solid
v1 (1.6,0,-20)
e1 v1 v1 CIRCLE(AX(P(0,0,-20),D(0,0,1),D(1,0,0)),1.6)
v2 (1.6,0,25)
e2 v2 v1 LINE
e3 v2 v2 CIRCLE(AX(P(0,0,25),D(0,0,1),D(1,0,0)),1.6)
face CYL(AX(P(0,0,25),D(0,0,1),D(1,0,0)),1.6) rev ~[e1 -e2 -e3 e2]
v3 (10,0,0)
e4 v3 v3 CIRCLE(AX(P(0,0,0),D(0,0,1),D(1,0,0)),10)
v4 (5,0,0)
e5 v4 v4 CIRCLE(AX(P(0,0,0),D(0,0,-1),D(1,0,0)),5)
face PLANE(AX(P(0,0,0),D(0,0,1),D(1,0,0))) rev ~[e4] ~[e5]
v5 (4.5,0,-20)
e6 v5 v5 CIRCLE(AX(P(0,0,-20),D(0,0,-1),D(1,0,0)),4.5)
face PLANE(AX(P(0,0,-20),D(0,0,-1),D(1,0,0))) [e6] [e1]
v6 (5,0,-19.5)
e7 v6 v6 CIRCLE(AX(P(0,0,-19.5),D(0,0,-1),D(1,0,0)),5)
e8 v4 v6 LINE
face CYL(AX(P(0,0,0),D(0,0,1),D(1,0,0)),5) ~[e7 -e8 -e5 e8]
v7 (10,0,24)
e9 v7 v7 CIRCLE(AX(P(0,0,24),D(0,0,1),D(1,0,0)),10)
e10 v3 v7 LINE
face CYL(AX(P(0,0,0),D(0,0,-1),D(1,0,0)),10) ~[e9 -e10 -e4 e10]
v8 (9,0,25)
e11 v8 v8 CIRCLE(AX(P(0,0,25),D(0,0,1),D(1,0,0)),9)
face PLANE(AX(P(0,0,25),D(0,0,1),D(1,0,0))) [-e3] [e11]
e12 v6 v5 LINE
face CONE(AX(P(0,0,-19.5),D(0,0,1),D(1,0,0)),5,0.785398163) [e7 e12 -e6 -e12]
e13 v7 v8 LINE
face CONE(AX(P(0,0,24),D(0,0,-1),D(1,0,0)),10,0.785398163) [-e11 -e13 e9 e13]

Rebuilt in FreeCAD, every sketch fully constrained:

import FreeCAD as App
import Part
import Sketcher

V = App.Vector


def edges_at(feature, points):
    """Names of the edges that pass closest to the given points."""
    edges = feature.Shape.Edges
    near = lambda p: min(range(len(edges)), key=lambda i: edges[i].distToShape(Part.Vertex(*p))[0])
    return sorted({f"Edge{near(p) + 1}" for p in points})

doc = App.newDocument("Part")
params = doc.addObject("Spreadsheet::Sheet", "Params")
for row, (alias, value) in enumerate([
    ("sketch1_diameter", "20 mm"),
    ("pad1_length", "25 mm"),
    ("chamfer_size", "1 mm"),
    ("sketch2_diameter", "10 mm"),
    ("pad2_length", "20 mm"),
    ("chamfer2_size", "0.5 mm"),
    ("sketch3_diameter", "3.2 mm"),
], start=1):
    params.set(f"A{row}", alias)
    params.set(f"B{row}", "=" + value)
    params.setAlias(f"B{row}", alias)

body = doc.addObject("PartDesign::Body", "Body")

sketch1 = doc.addObject("Sketcher::SketchObject", "Sketch")
body.addObject(sketch1)
sketch1.AttachmentSupport = (doc.XY_Plane, [""])
sketch1.MapMode = "FlatFace"
sketch1.addGeometry(Part.Circle(V(0, 0, 0), V(0, 0, 1), 10), False)
sketch1.addConstraint([
    Sketcher.Constraint("Coincident", 0, 3, -1, 1),
    Sketcher.Constraint("Diameter", 0, 20.0),
])
sketch1.setExpression("Constraints[1]", "Params.sketch1_diameter")
pad1 = doc.addObject("PartDesign::Pad", "Pad")
body.addObject(pad1)
pad1.Profile = sketch1
pad1.setExpression("Length", "Params.pad1_length")
doc.recompute()

chamfer = doc.addObject("PartDesign::Chamfer", "Chamfer")
body.addObject(chamfer)
chamfer.Base = (pad1, edges_at(pad1, [(-10, 0, 25)]))
chamfer.setExpression("Size", "Params.chamfer_size")

sketch2 = doc.addObject("Sketcher::SketchObject", "Sketch001")
body.addObject(sketch2)
sketch2.AttachmentSupport = (doc.XY_Plane, [""])
sketch2.MapMode = "FlatFace"
sketch2.addGeometry(Part.Circle(V(0, 0, 0), V(0, 0, 1), 5), False)
sketch2.addConstraint([
    Sketcher.Constraint("Coincident", 0, 3, -1, 1),
    Sketcher.Constraint("Diameter", 0, 10.0),
])
sketch2.setExpression("Constraints[1]", "Params.sketch2_diameter")
pad2 = doc.addObject("PartDesign::Pad", "Pad001")
body.addObject(pad2)
pad2.Profile = sketch2
pad2.setExpression("Length", "Params.pad2_length")
pad2.Reversed = True
doc.recompute()

chamfer2 = doc.addObject("PartDesign::Chamfer", "Chamfer001")
body.addObject(chamfer2)
chamfer2.Base = (pad2, edges_at(pad2, [(-5, 0, -20)]))
chamfer2.setExpression("Size", "Params.chamfer2_size")

sketch3 = doc.addObject("Sketcher::SketchObject", "Sketch002")
body.addObject(sketch3)
sketch3.AttachmentSupport = (doc.XY_Plane, [""])
sketch3.MapMode = "FlatFace"
sketch3.AttachmentOffset = App.Placement(V(0, 0, 25), App.Rotation())
sketch3.addGeometry(Part.Circle(V(0, 0, 0), V(0, 0, 1), 1.6), False)
sketch3.addConstraint([
    Sketcher.Constraint("Coincident", 0, 3, -1, 1),
    Sketcher.Constraint("Diameter", 0, 3.2),
])
sketch3.setExpression("Constraints[1]", "Params.sketch3_diameter")
pocket1 = doc.addObject("PartDesign::Pocket", "Pocket")
body.addObject(pocket1)
pocket1.Profile = sketch3
pocket1.Type = "ThroughAll"

doc.recompute()
